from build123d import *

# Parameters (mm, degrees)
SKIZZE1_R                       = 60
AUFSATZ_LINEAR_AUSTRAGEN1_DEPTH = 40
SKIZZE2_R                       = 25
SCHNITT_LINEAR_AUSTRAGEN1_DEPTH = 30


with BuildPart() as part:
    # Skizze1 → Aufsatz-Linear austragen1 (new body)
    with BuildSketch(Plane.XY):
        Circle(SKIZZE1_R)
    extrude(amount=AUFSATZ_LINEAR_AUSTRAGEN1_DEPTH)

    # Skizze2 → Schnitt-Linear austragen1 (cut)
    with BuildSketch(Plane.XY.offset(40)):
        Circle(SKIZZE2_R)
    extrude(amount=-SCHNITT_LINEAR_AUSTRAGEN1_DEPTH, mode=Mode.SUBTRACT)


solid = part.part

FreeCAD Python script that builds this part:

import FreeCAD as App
import Part
import Sketcher
from FreeCAD import Vector

doc = App.newDocument("Part")
body = doc.addObject("PartDesign::Body", "Body")

# Sketch on XY plane
sketch1 = doc.addObject("Sketcher::SketchObject", "Sketch")
body.addObject(sketch1)
sketch1.AttachmentSupport = (doc.XY_Plane, [""])
sketch1.MapMode = "FlatFace"
sketch1.addGeometry(Part.Circle(Vector(0, 0, 0), Vector(0, 0, 1), 60), False)
sketch1.addConstraint([
    Sketcher.Constraint("Coincident", 0, 3, -1, 1),
    Sketcher.Constraint("Diameter", 0, 120.0),
])
pad1 = doc.addObject("PartDesign::Pad", "Pad")
body.addObject(pad1)
pad1.Profile = sketch1
pad1.Length = 40

# Sketch on XY plane
sketch2 = doc.addObject("Sketcher::SketchObject", "Sketch001")
body.addObject(sketch2)
sketch2.AttachmentSupport = (doc.XY_Plane, [""])
sketch2.MapMode = "FlatFace"
sketch2.AttachmentOffset = App.Placement(Vector(0, 0, 40), App.Rotation())
sketch2.addGeometry(Part.Circle(Vector(0, 0, 0), Vector(0, 0, 1), 25), False)
sketch2.addConstraint([
    Sketcher.Constraint("Coincident", 0, 3, -1, 1),
    Sketcher.Constraint("Diameter", 0, 50.0),
])
pocket1 = doc.addObject("PartDesign::Pocket", "Pocket")
body.addObject(pocket1)
pocket1.Profile = sketch2
pocket1.Length = 30

doc.recompute()
